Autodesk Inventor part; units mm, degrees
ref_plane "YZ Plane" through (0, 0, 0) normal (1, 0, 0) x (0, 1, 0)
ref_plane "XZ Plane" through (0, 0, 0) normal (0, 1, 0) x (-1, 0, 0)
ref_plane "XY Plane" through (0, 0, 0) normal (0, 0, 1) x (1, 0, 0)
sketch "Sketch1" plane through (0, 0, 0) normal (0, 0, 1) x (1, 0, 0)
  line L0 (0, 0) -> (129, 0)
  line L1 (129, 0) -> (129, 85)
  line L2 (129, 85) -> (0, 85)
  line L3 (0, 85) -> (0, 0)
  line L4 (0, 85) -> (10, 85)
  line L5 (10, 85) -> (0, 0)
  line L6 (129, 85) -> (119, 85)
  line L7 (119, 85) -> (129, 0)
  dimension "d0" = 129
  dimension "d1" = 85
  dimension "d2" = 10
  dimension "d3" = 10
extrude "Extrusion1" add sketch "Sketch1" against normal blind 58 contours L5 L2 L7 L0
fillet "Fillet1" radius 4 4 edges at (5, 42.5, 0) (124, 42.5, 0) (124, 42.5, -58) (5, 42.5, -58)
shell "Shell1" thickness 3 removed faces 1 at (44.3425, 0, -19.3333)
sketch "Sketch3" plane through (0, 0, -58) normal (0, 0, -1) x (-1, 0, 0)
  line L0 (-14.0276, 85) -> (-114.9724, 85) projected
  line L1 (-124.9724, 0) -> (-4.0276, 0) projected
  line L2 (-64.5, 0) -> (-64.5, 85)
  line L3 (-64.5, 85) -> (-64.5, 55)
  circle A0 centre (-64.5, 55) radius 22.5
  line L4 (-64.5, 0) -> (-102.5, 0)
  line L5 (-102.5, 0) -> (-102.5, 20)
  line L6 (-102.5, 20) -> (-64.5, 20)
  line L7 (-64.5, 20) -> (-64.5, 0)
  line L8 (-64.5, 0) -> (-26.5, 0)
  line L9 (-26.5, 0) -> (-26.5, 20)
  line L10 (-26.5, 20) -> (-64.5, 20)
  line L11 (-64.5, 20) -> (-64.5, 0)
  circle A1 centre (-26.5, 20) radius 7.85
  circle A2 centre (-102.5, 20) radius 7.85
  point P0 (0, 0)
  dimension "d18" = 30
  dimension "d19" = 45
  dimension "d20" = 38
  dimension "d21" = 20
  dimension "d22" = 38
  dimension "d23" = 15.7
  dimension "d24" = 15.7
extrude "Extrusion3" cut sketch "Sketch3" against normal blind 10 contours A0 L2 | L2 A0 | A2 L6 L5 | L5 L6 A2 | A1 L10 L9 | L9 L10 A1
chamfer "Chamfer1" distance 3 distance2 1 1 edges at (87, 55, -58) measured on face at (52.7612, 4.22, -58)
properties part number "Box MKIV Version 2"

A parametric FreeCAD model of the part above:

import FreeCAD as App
import Part
import Sketcher
from FreeCAD import Vector
Q = App.Units.Quantity


def edges_at(feature, points):
    """Names of the edges that pass closest to the given points."""
    edges = feature.Shape.Edges
    near = lambda p: min(range(len(edges)), key=lambda i: edges[i].distToShape(Part.Vertex(*p))[0])
    return sorted({f"Edge{near(p) + 1}" for p in points})


def faces_at(feature, points):
    """Names of the faces that lie closest to the given points."""
    faces = feature.Shape.Faces
    near = lambda p: min(range(len(faces)), key=lambda i: faces[i].distToShape(Part.Vertex(*p))[0])
    return sorted({f"Face{near(p) + 1}" for p in points})

doc = App.newDocument("Part")
body = doc.addObject("PartDesign::Body", "Body")

sketch1 = doc.addObject("Sketcher::SketchObject", "Sketch")
body.addObject(sketch1)
sketch1.AttachmentSupport = (doc.XY_Plane, [""])
sketch1.MapMode = "FlatFace"
sketch1.addGeometry([
    Part.LineSegment(Vector(10, 85, 0), Vector(0, 0, 0)),
    Part.LineSegment(Vector(0, 0, 0), Vector(129, 0, 0)),
    Part.LineSegment(Vector(129, 0, 0), Vector(119, 85, 0)),
    Part.LineSegment(Vector(119, 85, 0), Vector(10, 85, 0)),
], False)
sketch1.addConstraint([
    Sketcher.Constraint("Coincident", 0, 2, 1, 1),
    Sketcher.Constraint("Coincident", 1, 2, 2, 1),
    Sketcher.Constraint("Coincident", 2, 2, 3, 1),
    Sketcher.Constraint("Coincident", 3, 2, 0, 1),
    Sketcher.Constraint("Horizontal", 1),
    Sketcher.Constraint("Horizontal", 3),
    Sketcher.Constraint("Coincident", 0, 2, -1, 1),
    Sketcher.Constraint("Equal", 0, 2),
    Sketcher.Constraint("DistanceX", 1, 1, 1, 2, Q("129 mm")),
    Sketcher.Constraint("DistanceY", -1, 1, 2, 2, Q("85 mm")),
    Sketcher.Constraint("DistanceX", -1, 1, 3, 2, Q("10 mm")),
])
pad1 = doc.addObject("PartDesign::Pad", "Pad")
body.addObject(pad1)
pad1.Profile = sketch1
pad1.Length = 58
pad1.Reversed = True
doc.recompute()

fillet = doc.addObject("PartDesign::Fillet", "Fillet")
body.addObject(fillet)
fillet.Base = (pad1, edges_at(pad1, [
    (5, 42.5, 0),
    (124, 42.5, 0),
    (124, 42.5, -58),
    (5, 42.5, -58),
]))
fillet.Radius = 4
doc.recompute()

thickness = doc.addObject("PartDesign::Thickness", "Thickness")
body.addObject(thickness)
thickness.Base = (fillet, faces_at(fillet, [(44.343, 0, -19.333)]))
thickness.Value = 3
thickness.Reversed = True
thickness.Join = "Intersection"

sketch2 = doc.addObject("Sketcher::SketchObject", "Sketch001")
body.addObject(sketch2)
sketch2.AttachmentSupport = (doc.XY_Plane, [""])
sketch2.MapMode = "FlatFace"
sketch2.AttachmentOffset = App.Placement(Vector(0, 0, -58), App.Rotation())
sketch2.addGeometry([
    Part.Circle(Vector(64, 55, 0), Vector(0, 0, 1), 22),
    Part.Circle(Vector(102, 20, 0), Vector(0, 0, 1), 8),
    Part.Circle(Vector(26, 20, 0), Vector(0, 0, 1), 8),
], False)
sketch2.addConstraint([
    Sketcher.Constraint("Equal", 1, 2),
    Sketcher.Constraint("Horizontal", 1, 3, 2, 3),
    Sketcher.Constraint("Diameter", 0, Q("45 mm")),
    Sketcher.Constraint("Diameter", 1, Q("15.7 mm")),
    Sketcher.Constraint("DistanceY", -1, 1, 1, 3, Q("20 mm")),
    Sketcher.Constraint("DistanceX", 0, 3, 1, 3, Q("38 mm")),
    Sketcher.Constraint("DistanceX", 2, 3, 0, 3, Q("38 mm")),
    Sketcher.Constraint("DistanceY", -1, 1, 0, 3, Q("55 mm")),
    Sketcher.Constraint("DistanceX", -1, 1, 0, 3, Q("64.5 mm")),
])
pocket1 = doc.addObject("PartDesign::Pocket", "Pocket")
body.addObject(pocket1)
pocket1.Profile = sketch2
pocket1.Length = 10
pocket1.Reversed = True
doc.recompute()

chamfer = doc.addObject("PartDesign::Chamfer", "Chamfer")
body.addObject(chamfer)
chamfer.Base = (pocket1, edges_at(pocket1, [(87, 55, -58)]))
chamfer.ChamferType = "Two distances"
chamfer.Size = 3
chamfer.Size2 = 1

doc.recompute()
